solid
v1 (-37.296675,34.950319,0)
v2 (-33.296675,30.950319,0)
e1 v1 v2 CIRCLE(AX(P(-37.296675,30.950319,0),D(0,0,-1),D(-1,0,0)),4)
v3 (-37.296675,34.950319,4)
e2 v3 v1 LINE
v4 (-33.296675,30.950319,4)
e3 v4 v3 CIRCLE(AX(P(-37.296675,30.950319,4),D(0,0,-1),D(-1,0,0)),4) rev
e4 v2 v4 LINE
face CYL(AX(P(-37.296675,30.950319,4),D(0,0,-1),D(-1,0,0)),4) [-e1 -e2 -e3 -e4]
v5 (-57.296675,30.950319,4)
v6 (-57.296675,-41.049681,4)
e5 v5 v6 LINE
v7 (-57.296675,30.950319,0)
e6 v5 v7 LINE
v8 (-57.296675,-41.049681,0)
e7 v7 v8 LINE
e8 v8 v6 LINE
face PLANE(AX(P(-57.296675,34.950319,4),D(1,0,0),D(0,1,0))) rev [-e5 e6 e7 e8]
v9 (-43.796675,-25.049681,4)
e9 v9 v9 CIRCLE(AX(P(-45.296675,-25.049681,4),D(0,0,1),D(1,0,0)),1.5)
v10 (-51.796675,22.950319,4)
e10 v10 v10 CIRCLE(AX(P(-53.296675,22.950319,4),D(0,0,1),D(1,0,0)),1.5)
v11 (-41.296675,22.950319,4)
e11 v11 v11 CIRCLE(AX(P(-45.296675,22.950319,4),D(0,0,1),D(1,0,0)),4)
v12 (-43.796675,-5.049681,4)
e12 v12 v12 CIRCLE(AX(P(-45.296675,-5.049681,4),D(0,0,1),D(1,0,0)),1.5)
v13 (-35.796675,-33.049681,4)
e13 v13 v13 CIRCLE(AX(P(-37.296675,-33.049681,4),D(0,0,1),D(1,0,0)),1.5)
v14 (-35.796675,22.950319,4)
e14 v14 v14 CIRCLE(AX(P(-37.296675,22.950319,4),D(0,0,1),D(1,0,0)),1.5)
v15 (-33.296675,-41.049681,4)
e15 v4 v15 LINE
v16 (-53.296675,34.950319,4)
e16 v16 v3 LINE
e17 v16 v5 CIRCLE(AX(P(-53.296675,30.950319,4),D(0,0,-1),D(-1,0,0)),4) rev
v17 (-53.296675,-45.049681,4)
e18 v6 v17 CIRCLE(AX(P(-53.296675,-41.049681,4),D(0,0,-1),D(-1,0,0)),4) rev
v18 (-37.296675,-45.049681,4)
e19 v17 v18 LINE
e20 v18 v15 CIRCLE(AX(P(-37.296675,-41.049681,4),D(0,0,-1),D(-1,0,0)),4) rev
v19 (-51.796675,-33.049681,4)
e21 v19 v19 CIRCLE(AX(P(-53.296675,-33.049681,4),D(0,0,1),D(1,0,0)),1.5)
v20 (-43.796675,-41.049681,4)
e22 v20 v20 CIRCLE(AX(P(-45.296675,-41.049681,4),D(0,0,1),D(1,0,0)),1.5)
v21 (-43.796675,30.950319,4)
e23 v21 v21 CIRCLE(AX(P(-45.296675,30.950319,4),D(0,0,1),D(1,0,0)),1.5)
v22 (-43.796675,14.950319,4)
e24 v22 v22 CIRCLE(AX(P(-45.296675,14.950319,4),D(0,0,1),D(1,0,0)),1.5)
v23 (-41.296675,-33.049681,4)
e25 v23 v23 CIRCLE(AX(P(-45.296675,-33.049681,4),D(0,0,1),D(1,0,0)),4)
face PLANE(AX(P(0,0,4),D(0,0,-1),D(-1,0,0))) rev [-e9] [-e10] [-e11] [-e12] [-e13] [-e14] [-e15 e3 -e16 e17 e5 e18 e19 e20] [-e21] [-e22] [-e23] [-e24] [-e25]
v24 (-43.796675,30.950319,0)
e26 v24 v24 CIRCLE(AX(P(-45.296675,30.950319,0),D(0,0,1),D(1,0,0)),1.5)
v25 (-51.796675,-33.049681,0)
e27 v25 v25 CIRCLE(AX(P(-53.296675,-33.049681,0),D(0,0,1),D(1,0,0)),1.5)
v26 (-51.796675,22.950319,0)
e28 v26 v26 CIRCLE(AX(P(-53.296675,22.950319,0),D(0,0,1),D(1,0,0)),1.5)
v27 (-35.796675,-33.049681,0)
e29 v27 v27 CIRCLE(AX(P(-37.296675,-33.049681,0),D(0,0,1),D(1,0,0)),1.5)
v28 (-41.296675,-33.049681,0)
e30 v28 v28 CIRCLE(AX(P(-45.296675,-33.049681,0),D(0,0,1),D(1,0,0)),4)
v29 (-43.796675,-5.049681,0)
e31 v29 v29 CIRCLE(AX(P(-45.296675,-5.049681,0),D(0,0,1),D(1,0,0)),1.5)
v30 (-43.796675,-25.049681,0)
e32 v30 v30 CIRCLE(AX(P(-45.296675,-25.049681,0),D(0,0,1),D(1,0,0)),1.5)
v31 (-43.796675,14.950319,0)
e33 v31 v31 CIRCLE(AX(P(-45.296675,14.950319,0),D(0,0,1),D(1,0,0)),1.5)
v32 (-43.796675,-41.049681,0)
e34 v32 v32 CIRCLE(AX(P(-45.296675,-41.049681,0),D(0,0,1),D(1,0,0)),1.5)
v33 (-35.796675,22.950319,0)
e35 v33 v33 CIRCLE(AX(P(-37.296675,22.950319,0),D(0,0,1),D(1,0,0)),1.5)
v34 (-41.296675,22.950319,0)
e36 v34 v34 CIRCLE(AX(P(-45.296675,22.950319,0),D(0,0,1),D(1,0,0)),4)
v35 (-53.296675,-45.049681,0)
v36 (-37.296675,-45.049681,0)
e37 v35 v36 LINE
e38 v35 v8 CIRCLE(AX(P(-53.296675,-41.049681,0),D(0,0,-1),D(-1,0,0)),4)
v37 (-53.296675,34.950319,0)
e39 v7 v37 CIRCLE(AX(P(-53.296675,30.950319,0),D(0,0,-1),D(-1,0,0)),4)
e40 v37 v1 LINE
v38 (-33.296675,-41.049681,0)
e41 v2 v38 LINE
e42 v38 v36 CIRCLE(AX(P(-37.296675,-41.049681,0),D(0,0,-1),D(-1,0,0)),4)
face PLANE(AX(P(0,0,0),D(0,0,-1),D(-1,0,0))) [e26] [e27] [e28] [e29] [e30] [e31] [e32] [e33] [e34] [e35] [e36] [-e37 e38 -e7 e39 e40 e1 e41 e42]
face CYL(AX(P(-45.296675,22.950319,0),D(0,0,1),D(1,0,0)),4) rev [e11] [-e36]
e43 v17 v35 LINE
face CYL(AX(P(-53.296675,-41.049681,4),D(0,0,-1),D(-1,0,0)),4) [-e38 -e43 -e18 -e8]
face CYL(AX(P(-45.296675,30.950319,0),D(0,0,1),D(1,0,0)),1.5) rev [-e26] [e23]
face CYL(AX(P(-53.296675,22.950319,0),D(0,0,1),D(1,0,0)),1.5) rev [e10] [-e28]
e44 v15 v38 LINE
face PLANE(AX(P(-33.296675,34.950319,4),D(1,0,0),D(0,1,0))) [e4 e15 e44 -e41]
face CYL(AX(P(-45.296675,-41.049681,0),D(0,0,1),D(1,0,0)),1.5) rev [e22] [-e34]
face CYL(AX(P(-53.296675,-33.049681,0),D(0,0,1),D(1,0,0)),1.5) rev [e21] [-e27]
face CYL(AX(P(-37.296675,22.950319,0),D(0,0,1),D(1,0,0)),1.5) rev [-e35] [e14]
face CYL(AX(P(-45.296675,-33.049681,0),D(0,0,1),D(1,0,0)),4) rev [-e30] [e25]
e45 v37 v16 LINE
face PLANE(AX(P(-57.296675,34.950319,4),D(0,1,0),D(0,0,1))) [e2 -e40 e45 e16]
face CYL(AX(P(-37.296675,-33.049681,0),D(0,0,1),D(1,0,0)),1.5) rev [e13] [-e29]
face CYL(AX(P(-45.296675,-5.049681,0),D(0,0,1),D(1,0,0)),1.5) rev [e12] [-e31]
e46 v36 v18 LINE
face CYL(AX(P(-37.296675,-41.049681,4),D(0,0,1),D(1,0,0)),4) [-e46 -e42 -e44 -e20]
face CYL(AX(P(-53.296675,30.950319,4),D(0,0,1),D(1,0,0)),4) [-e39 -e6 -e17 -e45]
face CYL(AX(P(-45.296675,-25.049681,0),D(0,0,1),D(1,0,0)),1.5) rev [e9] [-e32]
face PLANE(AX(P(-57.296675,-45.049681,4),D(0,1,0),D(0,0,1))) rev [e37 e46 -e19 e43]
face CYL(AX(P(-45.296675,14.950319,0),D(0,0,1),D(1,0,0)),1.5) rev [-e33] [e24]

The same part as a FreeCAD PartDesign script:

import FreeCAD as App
import Part
import Sketcher

V = App.Vector
Q = App.Units.Quantity


def edges_at(feature, points):
    """Names of the edges that pass closest to the given points."""
    edges = feature.Shape.Edges
    near = lambda p: min(range(len(edges)), key=lambda i: edges[i].distToShape(Part.Vertex(*p))[0])
    return sorted({f"Edge{near(p) + 1}" for p in points})

doc = App.newDocument("Part")
body = doc.addObject("PartDesign::Body", "Body")

# Sketch on XY plane
sketch1 = body.newObject("Sketcher::SketchObject", "Sketch")
sketch1.AttachmentSupport = (doc.getObject("XY_Plane"), [""])
sketch1.MapMode = "FlatFace"
sketch1.addGeometry(Part.LineSegment(V(-57.296675, 34.950319, 0), V(-57.296675, -45.049681, 0)), False)
sketch1.addGeometry(Part.LineSegment(V(-57.296675, -45.049681, 0), V(-33.296675, -45.049681, 0)), False)
sketch1.addGeometry(Part.LineSegment(V(-33.296675, -45.049681, 0), V(-33.296675, 34.950319, 0)), False)
sketch1.addGeometry(Part.LineSegment(V(-33.296675, 34.950319, 0), V(-57.296675, 34.950319, 0)), False)
sketch1.addConstraint(Sketcher.Constraint("Coincident", 0, 2, 1, 1))
sketch1.addConstraint(Sketcher.Constraint("Coincident", 1, 2, 2, 1))
sketch1.addConstraint(Sketcher.Constraint("Coincident", 2, 2, 3, 1))
sketch1.addConstraint(Sketcher.Constraint("Coincident", 3, 2, 0, 1))
sketch1.addConstraint(Sketcher.Constraint("Vertical", 0))
sketch1.addConstraint(Sketcher.Constraint("Horizontal", 1))
sketch1.addConstraint(Sketcher.Constraint("Vertical", 2))
sketch1.addConstraint(Sketcher.Constraint("Horizontal", 3))
sketch1.addConstraint(Sketcher.Constraint("DistanceX", 1, 1, 1, 2, Q("24 mm")))
sketch1.addConstraint(Sketcher.Constraint("DistanceY", 0, 2, 0, 1, Q("80 mm")))
sketch1.addConstraint(Sketcher.Constraint("DistanceY", 0, 2, -1, 1, Q("45.049681 mm")))
sketch1.addConstraint(Sketcher.Constraint("DistanceX", 0, 2, -1, 1, Q("57.296675 mm")))
pad1 = body.newObject("PartDesign::Pad", "Pad")
pad1.Profile = sketch1
pad1.Length = 4

# Sketch on XY plane
sketch2 = body.newObject("Sketcher::SketchObject", "Sketch001")
sketch2.AttachmentSupport = (doc.getObject("XY_Plane"), [""])
sketch2.MapMode = "FlatFace"
sketch2.AttachmentOffset = App.Placement(V(0, 0, 4), App.Rotation())
sketch2.addGeometry(Part.Circle(V(-45.296675, -33.049681, 0), V(0, 0, 1), 4), False)
sketch2.addGeometry(Part.Circle(V(-37.296675, -33.049681, 0), V(0, 0, 1), 1.5), False)
sketch2.addGeometry(Part.Circle(V(-45.296675, -41.049681, 0), V(0, 0, 1), 1.5), False)
sketch2.addGeometry(Part.Circle(V(-53.296675, -33.049681, 0), V(0, 0, 1), 1.5), False)
sketch2.addGeometry(Part.Circle(V(-45.296675, -25.049681, 0), V(0, 0, 1), 1.5), False)
sketch2.addGeometry(Part.Circle(V(-45.296675, 30.950319, 0), V(0, 0, 1), 1.5), False)
sketch2.addGeometry(Part.Circle(V(-37.296675, 22.950319, 0), V(0, 0, 1), 1.5), False)
sketch2.addGeometry(Part.Circle(V(-45.296675, 14.950319, 0), V(0, 0, 1), 1.5), False)
sketch2.addGeometry(Part.Circle(V(-53.296675, 22.950319, 0), V(0, 0, 1), 1.5), False)
sketch2.addGeometry(Part.Circle(V(-45.296675, 22.950319, 0), V(0, 0, 1), 4), False)
sketch2.addConstraint(Sketcher.Constraint("Equal", 1, 2))
sketch2.addConstraint(Sketcher.Constraint("Equal", 2, 3))
sketch2.addConstraint(Sketcher.Constraint("Equal", 3, 4))
sketch2.addConstraint(Sketcher.Constraint("Equal", 4, 5))
sketch2.addConstraint(Sketcher.Constraint("Equal", 5, 6))
sketch2.addConstraint(Sketcher.Constraint("Equal", 6, 7))
sketch2.addConstraint(Sketcher.Constraint("Equal", 7, 8))
sketch2.addConstraint(Sketcher.Constraint("Equal", 0, 9))
sketch2.addConstraint(Sketcher.Constraint("Horizontal", 0, 3, 1, 3))
sketch2.addConstraint(Sketcher.Constraint("Horizontal", 1, 3, 3, 3))
sketch2.addConstraint(Sketcher.Constraint("Horizontal", 6, 3, 8, 3))
sketch2.addConstraint(Sketcher.Constraint("Horizontal", 8, 3, 9, 3))
sketch2.addConstraint(Sketcher.Constraint("Vertical", 0, 3, 2, 3))
sketch2.addConstraint(Sketcher.Constraint("Vertical", 2, 3, 4, 3))
sketch2.addConstraint(Sketcher.Constraint("Vertical", 4, 3, 5, 3))
sketch2.addConstraint(Sketcher.Constraint("Vertical", 1, 3, 6, 3))
sketch2.addConstraint(Sketcher.Constraint("Vertical", 5, 3, 7, 3))
sketch2.addConstraint(Sketcher.Constraint("Vertical", 3, 3, 8, 3))
sketch2.addConstraint(Sketcher.Constraint("Vertical", 7, 3, 9, 3))
sketch2.addConstraint(Sketcher.Constraint("Diameter", 0, Q("8 mm")))
sketch2.addConstraint(Sketcher.Constraint("Diameter", 1, Q("3 mm")))
sketch2.addConstraint(Sketcher.Constraint("DistanceX", 0, 3, 1, 3, Q("8 mm")))
sketch2.addConstraint(Sketcher.Constraint("DistanceY", 2, 3, 0, 3, Q("8 mm")))
sketch2.addConstraint(Sketcher.Constraint("DistanceX", 3, 3, 0, 3, Q("8 mm")))
sketch2.addConstraint(Sketcher.Constraint("DistanceY", 0, 3, 4, 3, Q("8 mm")))
sketch2.addConstraint(Sketcher.Constraint("DistanceY", 4, 3, 5, 3, Q("56 mm")))
sketch2.addConstraint(Sketcher.Constraint("DistanceY", 6, 3, 5, 3, Q("8 mm")))
sketch2.addConstraint(Sketcher.Constraint("DistanceY", 7, 3, 6, 3, Q("8 mm")))
sketch2.addConstraint(Sketcher.Constraint("DistanceY", 0, 3, -1, 1, Q("33.049681 mm")))
sketch2.addConstraint(Sketcher.Constraint("DistanceX", 0, 3, -1, 1, Q("45.296675 mm")))
pocket1 = body.newObject("PartDesign::Pocket", "Pocket")
pocket1.Profile = sketch2
pocket1.Length = 4
doc.recompute()

fillet = body.newObject("PartDesign::Fillet", "Fillet")
fillet.Base = (pocket1, edges_at(pocket1, [
    (-57.297, 34.95, 2),
    (-57.297, -45.05, 2),
    (-33.297, -45.05, 2),
    (-33.297, 34.95, 2),
]))
fillet.Radius = 4

# Sketch on XY plane
sketch3 = body.newObject("Sketcher::SketchObject", "Sketch002")
sketch3.AttachmentSupport = (doc.getObject("XY_Plane"), [""])
sketch3.MapMode = "FlatFace"
sketch3.AttachmentOffset = App.Placement(V(0, 0, 4), App.Rotation())
sketch3.addGeometry(Part.Circle(V(-45.296675, -5.049681, 0), V(0, 0, 1), 1.5), False)
sketch3.addConstraint(Sketcher.Constraint("Diameter", 0, Q("3 mm")))
sketch3.addConstraint(Sketcher.Constraint("DistanceY", 0, 3, -1, 1, Q("5.049681 mm")))
sketch3.addConstraint(Sketcher.Constraint("DistanceX", 0, 3, -1, 1, Q("45.296675 mm")))
pocket2 = body.newObject("PartDesign::Pocket", "Pocket001")
pocket2.Profile = sketch3
pocket2.Length = 4

doc.recompute()
